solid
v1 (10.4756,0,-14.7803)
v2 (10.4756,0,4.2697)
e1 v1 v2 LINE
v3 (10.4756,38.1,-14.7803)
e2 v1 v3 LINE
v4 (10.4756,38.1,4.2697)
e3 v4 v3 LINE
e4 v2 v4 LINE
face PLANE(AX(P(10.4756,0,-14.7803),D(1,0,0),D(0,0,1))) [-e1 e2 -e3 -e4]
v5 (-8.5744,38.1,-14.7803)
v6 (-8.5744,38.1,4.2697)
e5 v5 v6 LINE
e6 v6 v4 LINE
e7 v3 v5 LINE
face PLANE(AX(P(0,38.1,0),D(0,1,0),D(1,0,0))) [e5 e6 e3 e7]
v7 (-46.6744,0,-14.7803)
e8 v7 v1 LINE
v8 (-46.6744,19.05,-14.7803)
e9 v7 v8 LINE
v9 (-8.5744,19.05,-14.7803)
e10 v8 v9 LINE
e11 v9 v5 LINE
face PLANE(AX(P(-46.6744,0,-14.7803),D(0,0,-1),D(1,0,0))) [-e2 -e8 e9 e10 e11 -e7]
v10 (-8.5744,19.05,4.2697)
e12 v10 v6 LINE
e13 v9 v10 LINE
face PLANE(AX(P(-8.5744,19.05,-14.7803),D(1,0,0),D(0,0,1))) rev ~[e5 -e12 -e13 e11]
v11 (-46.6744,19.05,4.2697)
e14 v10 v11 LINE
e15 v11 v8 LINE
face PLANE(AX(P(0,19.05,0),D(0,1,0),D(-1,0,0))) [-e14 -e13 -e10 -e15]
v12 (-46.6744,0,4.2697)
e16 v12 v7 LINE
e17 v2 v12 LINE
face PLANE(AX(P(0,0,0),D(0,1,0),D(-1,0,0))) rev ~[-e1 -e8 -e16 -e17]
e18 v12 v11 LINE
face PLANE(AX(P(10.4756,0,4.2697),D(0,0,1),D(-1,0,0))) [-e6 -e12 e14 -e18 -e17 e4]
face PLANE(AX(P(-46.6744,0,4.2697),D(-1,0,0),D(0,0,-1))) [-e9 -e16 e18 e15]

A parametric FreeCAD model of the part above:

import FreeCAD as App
import Part
import Sketcher

V = App.Vector
Q = App.Units.Quantity

doc = App.newDocument("Part")
body = doc.addObject("PartDesign::Body", "Body")

sketch1 = doc.addObject("Sketcher::SketchObject", "Sketch")
body.addObject(sketch1)
sketch1.AttachmentSupport = (doc.XZ_Plane, [""])
sketch1.MapMode = "FlatFace"
sketch1.addGeometry(Part.LineSegment(V(-47, 4, 0), V(10, 4, 0)), False)
sketch1.addGeometry(Part.LineSegment(V(10, 4, 0), V(10, -15, 0)), False)
sketch1.addGeometry(Part.LineSegment(V(10, -15, 0), V(-47, -15, 0)), False)
sketch1.addGeometry(Part.LineSegment(V(-47, -15, 0), V(-47, 4, 0)), False)
sketch1.addConstraint(Sketcher.Constraint("Coincident", 0, 2, 1, 1))
sketch1.addConstraint(Sketcher.Constraint("Coincident", 1, 2, 2, 1))
sketch1.addConstraint(Sketcher.Constraint("Coincident", 2, 2, 3, 1))
sketch1.addConstraint(Sketcher.Constraint("Coincident", 3, 2, 0, 1))
sketch1.addConstraint(Sketcher.Constraint("Horizontal", 0))
sketch1.addConstraint(Sketcher.Constraint("Vertical", 1))
sketch1.addConstraint(Sketcher.Constraint("Horizontal", 2))
sketch1.addConstraint(Sketcher.Constraint("Vertical", 3))
sketch1.addConstraint(Sketcher.Constraint("DistanceX", 0, 1, 0, 2, Q("2.25 in")))
sketch1.addConstraint(Sketcher.Constraint("DistanceY", 1, 2, 1, 1, Q("0.75 in")))
sketch1.addConstraint(Sketcher.Constraint("DistanceY", -1, 1, 0, 2, Q("0.1681 in")))
sketch1.addConstraint(Sketcher.Constraint("DistanceX", -1, 1, 0, 2, 10.4756))
pad1 = doc.addObject("PartDesign::Pad", "Pad")
body.addObject(pad1)
pad1.Profile = sketch1
pad1.Length = Q("0.75 in")
pad1.Reversed = True

sketch2 = doc.addObject("Sketcher::SketchObject", "Sketch001")
body.addObject(sketch2)
sketch2.AttachmentSupport = (doc.XZ_Plane, [""])
sketch2.MapMode = "FlatFace"
sketch2.AttachmentOffset = App.Placement(V(0, 0, -0.75 * 25.4), App.Rotation())
sketch2.addGeometry(Part.LineSegment(V(10, 4, 0), V(10, -15, 0)), False)
sketch2.addGeometry(Part.LineSegment(V(10, -15, 0), V(-9, -15, 0)), False)
sketch2.addGeometry(Part.LineSegment(V(-9, -15, 0), V(-9, 4, 0)), False)
sketch2.addGeometry(Part.LineSegment(V(-9, 4, 0), V(10, 4, 0)), False)
sketch2.addConstraint(Sketcher.Constraint("Coincident", 0, 2, 1, 1))
sketch2.addConstraint(Sketcher.Constraint("Coincident", 1, 2, 2, 1))
sketch2.addConstraint(Sketcher.Constraint("Coincident", 2, 2, 3, 1))
sketch2.addConstraint(Sketcher.Constraint("Coincident", 3, 2, 0, 1))
sketch2.addConstraint(Sketcher.Constraint("Vertical", 0))
sketch2.addConstraint(Sketcher.Constraint("Horizontal", 1))
sketch2.addConstraint(Sketcher.Constraint("Vertical", 2))
sketch2.addConstraint(Sketcher.Constraint("Horizontal", 3))
sketch2.addConstraint(Sketcher.Constraint("Equal", 3, 0))
sketch2.addConstraint(Sketcher.Constraint("DistanceX", 1, 2, 1, 1, Q("0.75 in")))
sketch2.addConstraint(Sketcher.Constraint("DistanceY", 0, 2, -1, 1, Q("0.5819 in")))
sketch2.addConstraint(Sketcher.Constraint("DistanceX", -1, 1, 0, 2, 10.4756))
pad2 = doc.addObject("PartDesign::Pad", "Pad001")
body.addObject(pad2)
pad2.Profile = sketch2
pad2.Length = Q("0.75 in")
pad2.Reversed = True

doc.recompute()
